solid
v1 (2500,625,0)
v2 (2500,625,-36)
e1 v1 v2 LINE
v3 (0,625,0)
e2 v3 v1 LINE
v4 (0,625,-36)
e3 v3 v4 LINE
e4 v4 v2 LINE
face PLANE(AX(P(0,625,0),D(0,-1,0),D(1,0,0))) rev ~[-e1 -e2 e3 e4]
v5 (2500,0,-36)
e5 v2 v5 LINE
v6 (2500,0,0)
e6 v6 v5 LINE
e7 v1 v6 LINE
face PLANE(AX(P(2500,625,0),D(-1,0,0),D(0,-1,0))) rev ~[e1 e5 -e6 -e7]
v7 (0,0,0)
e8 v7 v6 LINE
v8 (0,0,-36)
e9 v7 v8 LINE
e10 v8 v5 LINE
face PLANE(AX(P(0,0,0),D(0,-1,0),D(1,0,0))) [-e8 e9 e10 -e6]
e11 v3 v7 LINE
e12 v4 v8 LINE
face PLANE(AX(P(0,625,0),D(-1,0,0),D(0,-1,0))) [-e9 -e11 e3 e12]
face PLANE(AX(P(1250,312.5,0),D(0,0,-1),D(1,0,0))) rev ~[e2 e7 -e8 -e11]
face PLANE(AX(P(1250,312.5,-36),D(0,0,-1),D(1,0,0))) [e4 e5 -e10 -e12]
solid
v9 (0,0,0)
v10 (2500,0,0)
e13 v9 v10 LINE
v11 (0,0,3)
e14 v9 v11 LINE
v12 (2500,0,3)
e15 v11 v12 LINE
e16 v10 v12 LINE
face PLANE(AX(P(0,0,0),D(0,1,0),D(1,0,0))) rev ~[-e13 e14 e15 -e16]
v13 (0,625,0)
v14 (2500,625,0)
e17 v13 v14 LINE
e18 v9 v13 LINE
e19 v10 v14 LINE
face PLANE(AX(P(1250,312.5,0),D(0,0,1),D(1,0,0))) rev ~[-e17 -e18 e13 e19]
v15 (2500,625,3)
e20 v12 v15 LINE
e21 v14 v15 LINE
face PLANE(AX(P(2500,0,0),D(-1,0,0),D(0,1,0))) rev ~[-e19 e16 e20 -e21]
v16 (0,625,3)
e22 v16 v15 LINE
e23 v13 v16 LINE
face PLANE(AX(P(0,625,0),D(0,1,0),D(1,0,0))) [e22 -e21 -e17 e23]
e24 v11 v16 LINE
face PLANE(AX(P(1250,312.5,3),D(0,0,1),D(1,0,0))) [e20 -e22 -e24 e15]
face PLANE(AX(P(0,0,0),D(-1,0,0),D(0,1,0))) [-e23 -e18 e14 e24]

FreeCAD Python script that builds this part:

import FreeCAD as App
import Part
import Sketcher

V = App.Vector
Q = App.Units.Quantity

doc = App.newDocument("Part")
body = doc.addObject("PartDesign::Body", "Body")

# Sketch on XY plane
sketch1 = body.newObject("Sketcher::SketchObject", "Sketch")
sketch1.AttachmentSupport = (doc.getObject("XY_Plane"), [""])
sketch1.MapMode = "FlatFace"
sketch1.addGeometry([
    Part.LineSegment(V(0, 625, 0), V(0, 0, 0)),
    Part.LineSegment(V(0, 0, 0), V(2500, 0, 0)),
    Part.LineSegment(V(2500, 0, 0), V(2500, 625, 0)),
    Part.LineSegment(V(2500, 625, 0), V(0, 625, 0)),
], False)
sketch1.addConstraint([
    Sketcher.Constraint("Coincident", 0, 2, 1, 1),
    Sketcher.Constraint("Coincident", 1, 2, 2, 1),
    Sketcher.Constraint("Coincident", 2, 2, 3, 1),
    Sketcher.Constraint("Coincident", 3, 2, 0, 1),
    Sketcher.Constraint("Vertical", 0),
    Sketcher.Constraint("Horizontal", 1),
    Sketcher.Constraint("Vertical", 2),
    Sketcher.Constraint("Horizontal", 3),
    Sketcher.Constraint("Coincident", 0, 2, -1, 1),
    Sketcher.Constraint("DistanceX", 1, 1, 1, 2, Q("2500 mm")),
    Sketcher.Constraint("DistanceY", 0, 2, 0, 1, Q("625 mm")),
])
pad1 = body.newObject("PartDesign::Pad", "Pad")
pad1.Profile = sketch1
pad1.Length = 3
body2 = doc.addObject("PartDesign::Body", "Body001")

# Sketch on XY plane
sketch2 = body2.newObject("Sketcher::SketchObject", "Sketch001")
sketch2.AttachmentSupport = (doc.getObject("XY_Plane001"), [""])
sketch2.MapMode = "FlatFace"
sketch2.addGeometry([
    Part.LineSegment(V(0, 0, 0), V(0, 625, 0)),
    Part.LineSegment(V(0, 625, 0), V(2500, 625, 0)),
    Part.LineSegment(V(2500, 625, 0), V(2500, 0, 0)),
    Part.LineSegment(V(2500, 0, 0), V(0, 0, 0)),
], False)
sketch2.addConstraint([
    Sketcher.Constraint("Coincident", 0, 2, 1, 1),
    Sketcher.Constraint("Coincident", 1, 2, 2, 1),
    Sketcher.Constraint("Coincident", 2, 2, 3, 1),
    Sketcher.Constraint("Coincident", 3, 2, 0, 1),
    Sketcher.Constraint("Vertical", 0),
    Sketcher.Constraint("Horizontal", 1),
    Sketcher.Constraint("Vertical", 2),
    Sketcher.Constraint("Horizontal", 3),
    Sketcher.Constraint("Coincident", 3, 2, -1, 1),
    Sketcher.Constraint("DistanceX", 1, 1, 1, 2, Q("2500 mm")),
    Sketcher.Constraint("DistanceY", 0, 1, 0, 2, Q("625 mm")),
])
pad2 = body2.newObject("PartDesign::Pad", "Pad001")
pad2.Profile = sketch2
pad2.Length = 36
pad2.Reversed = True

doc.recompute()
